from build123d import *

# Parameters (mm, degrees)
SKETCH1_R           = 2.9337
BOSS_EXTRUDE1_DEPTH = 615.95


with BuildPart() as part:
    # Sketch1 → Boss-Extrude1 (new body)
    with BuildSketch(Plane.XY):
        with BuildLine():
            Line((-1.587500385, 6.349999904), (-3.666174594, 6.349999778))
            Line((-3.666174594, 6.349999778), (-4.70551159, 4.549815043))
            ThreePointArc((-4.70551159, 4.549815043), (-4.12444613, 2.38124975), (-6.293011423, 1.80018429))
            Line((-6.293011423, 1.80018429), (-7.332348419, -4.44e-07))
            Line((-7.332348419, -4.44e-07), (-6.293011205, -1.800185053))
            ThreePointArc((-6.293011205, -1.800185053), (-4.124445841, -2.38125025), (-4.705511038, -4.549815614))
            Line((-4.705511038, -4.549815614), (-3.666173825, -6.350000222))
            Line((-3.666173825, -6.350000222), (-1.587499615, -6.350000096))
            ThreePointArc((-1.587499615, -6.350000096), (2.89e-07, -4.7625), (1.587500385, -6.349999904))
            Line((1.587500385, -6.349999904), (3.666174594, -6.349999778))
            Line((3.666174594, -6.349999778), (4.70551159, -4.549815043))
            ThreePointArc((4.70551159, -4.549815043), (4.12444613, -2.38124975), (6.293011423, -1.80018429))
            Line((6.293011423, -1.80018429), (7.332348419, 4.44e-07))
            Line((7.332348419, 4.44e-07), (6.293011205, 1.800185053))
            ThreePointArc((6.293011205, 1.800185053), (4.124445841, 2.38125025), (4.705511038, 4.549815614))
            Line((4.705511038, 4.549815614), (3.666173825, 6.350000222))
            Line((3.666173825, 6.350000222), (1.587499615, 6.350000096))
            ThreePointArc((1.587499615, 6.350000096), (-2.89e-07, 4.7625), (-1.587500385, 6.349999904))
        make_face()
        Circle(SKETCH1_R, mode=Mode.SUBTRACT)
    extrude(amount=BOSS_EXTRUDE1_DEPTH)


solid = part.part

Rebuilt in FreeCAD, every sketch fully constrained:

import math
import FreeCAD as App
import Part
import Sketcher
Q = App.Units.Quantity

doc = App.newDocument("Part")
params = doc.addObject("Spreadsheet::Sheet", "Params")
for row, (alias, value) in enumerate([
    ("sketch1_diameter", "0.231 in"),
    ("sketch1_radius", "0.0625 in"),
    ("pad1_length", "24.25 in"),
], start=1):
    params.set(f"A{row}", alias)
    params.set(f"B{row}", "=" + value)
    params.setAlias(f"B{row}", alias)

body = doc.addObject("PartDesign::Body", "Body")

sketch1 = doc.addObject("Sketcher::SketchObject", "Sketch")
body.addObject(sketch1)
sketch1.AttachmentSupport = (doc.XY_Plane, [""])
sketch1.MapMode = "FlatFace"
sketch1.addGeometry([
    Part.LineSegment(App.Vector(-1.6, 6.3, 0), App.Vector(-3.7, 6.3, 0)),
    Part.LineSegment(App.Vector(-3.7, 6.3, 0), App.Vector(-4.7, 4.5, 0)),
    Part.ArcOfCircle(Part.Circle(App.Vector(-5.5, 3.2, 0), App.Vector(0, 0, 1), 1.6), math.radians(-120), math.radians(60)),
    Part.LineSegment(App.Vector(-6.3, 1.8, 0), App.Vector(-7.3, 0, 0)),
    Part.LineSegment(App.Vector(-7.3, 0, 0), App.Vector(-6.3, -1.8, 0)),
    Part.ArcOfCircle(Part.Circle(App.Vector(-5.5, -3.2, 0), App.Vector(0, 0, 1), 1.6), math.radians(-60), math.radians(120)),
    Part.LineSegment(App.Vector(-4.7, -4.5, 0), App.Vector(-3.7, -6.4, 0)),
    Part.LineSegment(App.Vector(-3.7, -6.4, 0), App.Vector(-1.6, -6.4, 0)),
    Part.ArcOfCircle(Part.Circle(App.Vector(0, -6.3, 0), App.Vector(0, 0, 1), 1.6), math.radians(0), math.radians(180)),
    Part.LineSegment(App.Vector(1.6, -6.3, 0), App.Vector(3.7, -6.3, 0)),
    Part.LineSegment(App.Vector(3.7, -6.3, 0), App.Vector(4.7, -4.5, 0)),
    Part.ArcOfCircle(Part.Circle(App.Vector(5.5, -3.2, 0), App.Vector(0, 0, 1), 1.6), math.radians(60), math.radians(240)),
    Part.LineSegment(App.Vector(6.3, -1.8, 0), App.Vector(7.3, 0, 0)),
    Part.LineSegment(App.Vector(7.3, 0, 0), App.Vector(6.3, 1.8, 0)),
    Part.ArcOfCircle(Part.Circle(App.Vector(5.5, 3.2, 0), App.Vector(0, 0, 1), 1.6), math.radians(120), math.radians(300)),
    Part.LineSegment(App.Vector(4.7, 4.5, 0), App.Vector(3.7, 6.4, 0)),
    Part.LineSegment(App.Vector(3.7, 6.4, 0), App.Vector(1.6, 6.4, 0)),
    Part.ArcOfCircle(Part.Circle(App.Vector(0, 6.3, 0), App.Vector(0, 0, 1), 1.6), math.radians(-180), math.radians(0)),
    Part.Circle(App.Vector(0, 0, 0), App.Vector(0, 0, 1), 2.9),
], False)
sketch1.addConstraint([
    Sketcher.Constraint("Coincident", 0, 2, 1, 1),
    Sketcher.Constraint("Coincident", 1, 2, 2, 2),
    Sketcher.Constraint("Coincident", 2, 1, 3, 1),
    Sketcher.Constraint("Coincident", 3, 2, 4, 1),
    Sketcher.Constraint("Coincident", 4, 2, 5, 2),
    Sketcher.Constraint("Coincident", 5, 1, 6, 1),
    Sketcher.Constraint("Coincident", 6, 2, 7, 1),
    Sketcher.Constraint("Coincident", 7, 2, 8, 2),
    Sketcher.Constraint("Coincident", 8, 1, 9, 1),
    Sketcher.Constraint("Coincident", 9, 2, 10, 1),
    Sketcher.Constraint("Coincident", 10, 2, 11, 2),
    Sketcher.Constraint("Coincident", 11, 1, 12, 1),
    Sketcher.Constraint("Coincident", 12, 2, 13, 1),
    Sketcher.Constraint("Coincident", 13, 2, 14, 2),
    Sketcher.Constraint("Coincident", 14, 1, 15, 1),
    Sketcher.Constraint("Coincident", 15, 2, 16, 1),
    Sketcher.Constraint("Coincident", 16, 2, 17, 2),
    Sketcher.Constraint("Coincident", 17, 1, 0, 1),
    Sketcher.Constraint("Horizontal", 0),
    Sketcher.Constraint("Horizontal", 7),
    Sketcher.Constraint("Horizontal", 9),
    Sketcher.Constraint("Horizontal", 16),
    Sketcher.Constraint("Coincident", 18, 3, -1, 1),
    Sketcher.Constraint("Equal", 2, 5),
    Sketcher.Constraint("Equal", 5, 8),
    Sketcher.Constraint("Equal", 8, 11),
    Sketcher.Constraint("Equal", 11, 14),
    Sketcher.Constraint("Equal", 14, 17),
    Sketcher.Constraint("Symmetric", 2, 3, 11, 3, -1, 1),
    Sketcher.Constraint("Symmetric", 5, 3, 14, 3, -1, 1),
    Sketcher.Constraint("Symmetric", 8, 3, 17, 3, -1, 1),
    Sketcher.Constraint("Symmetric", 0, 2, 9, 2, -1, 1),
    Sketcher.Constraint("Symmetric", 3, 2, 12, 2, -1, 1),
    Sketcher.Constraint("Symmetric", 6, 2, 15, 2, -1, 1),
    Sketcher.Constraint("Symmetric", 5, 3, 11, 3, -2),
    Sketcher.Constraint("Symmetric", 7, 2, 8, 1, -2),
    Sketcher.Constraint("PointOnObject", 3, 2, -1),
    Sketcher.Constraint("Parallel", 1, 3),
    Sketcher.Constraint("Parallel", 4, 6),
    Sketcher.Constraint("Parallel", 3, 10),
    Sketcher.Constraint("Parallel", 10, 12),
    Sketcher.Constraint("Parallel", 6, 13),
    Sketcher.Constraint("Parallel", 13, 15),
    Sketcher.Constraint("Horizontal", 17, 3, 0, 2),
    Sketcher.Constraint("Horizontal", 5, 1, 10, 2),
    Sketcher.Constraint("Horizontal", 4, 2, 11, 1),
    Sketcher.Constraint("Equal", 1, 3),
    Sketcher.Constraint("Diameter", 18, Q("0.231 in")),
    Sketcher.Constraint("Angle", 1, Q("-119.999997 deg")),
    Sketcher.Constraint("Radius", 2, Q("0.0625 in")),
    Sketcher.Constraint("DistanceY", 8, 3, 17, 3, Q("0.5 in")),
    Sketcher.Constraint("DistanceY", 5, 3, 2, 3, Q("0.25 in")),
    Sketcher.Constraint("DistanceX", 2, 3, 1, 2, Q("0.03125 in")),
    Sketcher.Constraint("DistanceX", 0, 2, 0, 1, 2.078674),
])
sketch1.setExpression("Constraints[47]", "Params.sketch1_diameter")
sketch1.setExpression("Constraints[49]", "Params.sketch1_radius")
pad1 = doc.addObject("PartDesign::Pad", "Pad")
body.addObject(pad1)
pad1.Profile = sketch1
pad1.setExpression("Length", "Params.pad1_length")

doc.recompute()
